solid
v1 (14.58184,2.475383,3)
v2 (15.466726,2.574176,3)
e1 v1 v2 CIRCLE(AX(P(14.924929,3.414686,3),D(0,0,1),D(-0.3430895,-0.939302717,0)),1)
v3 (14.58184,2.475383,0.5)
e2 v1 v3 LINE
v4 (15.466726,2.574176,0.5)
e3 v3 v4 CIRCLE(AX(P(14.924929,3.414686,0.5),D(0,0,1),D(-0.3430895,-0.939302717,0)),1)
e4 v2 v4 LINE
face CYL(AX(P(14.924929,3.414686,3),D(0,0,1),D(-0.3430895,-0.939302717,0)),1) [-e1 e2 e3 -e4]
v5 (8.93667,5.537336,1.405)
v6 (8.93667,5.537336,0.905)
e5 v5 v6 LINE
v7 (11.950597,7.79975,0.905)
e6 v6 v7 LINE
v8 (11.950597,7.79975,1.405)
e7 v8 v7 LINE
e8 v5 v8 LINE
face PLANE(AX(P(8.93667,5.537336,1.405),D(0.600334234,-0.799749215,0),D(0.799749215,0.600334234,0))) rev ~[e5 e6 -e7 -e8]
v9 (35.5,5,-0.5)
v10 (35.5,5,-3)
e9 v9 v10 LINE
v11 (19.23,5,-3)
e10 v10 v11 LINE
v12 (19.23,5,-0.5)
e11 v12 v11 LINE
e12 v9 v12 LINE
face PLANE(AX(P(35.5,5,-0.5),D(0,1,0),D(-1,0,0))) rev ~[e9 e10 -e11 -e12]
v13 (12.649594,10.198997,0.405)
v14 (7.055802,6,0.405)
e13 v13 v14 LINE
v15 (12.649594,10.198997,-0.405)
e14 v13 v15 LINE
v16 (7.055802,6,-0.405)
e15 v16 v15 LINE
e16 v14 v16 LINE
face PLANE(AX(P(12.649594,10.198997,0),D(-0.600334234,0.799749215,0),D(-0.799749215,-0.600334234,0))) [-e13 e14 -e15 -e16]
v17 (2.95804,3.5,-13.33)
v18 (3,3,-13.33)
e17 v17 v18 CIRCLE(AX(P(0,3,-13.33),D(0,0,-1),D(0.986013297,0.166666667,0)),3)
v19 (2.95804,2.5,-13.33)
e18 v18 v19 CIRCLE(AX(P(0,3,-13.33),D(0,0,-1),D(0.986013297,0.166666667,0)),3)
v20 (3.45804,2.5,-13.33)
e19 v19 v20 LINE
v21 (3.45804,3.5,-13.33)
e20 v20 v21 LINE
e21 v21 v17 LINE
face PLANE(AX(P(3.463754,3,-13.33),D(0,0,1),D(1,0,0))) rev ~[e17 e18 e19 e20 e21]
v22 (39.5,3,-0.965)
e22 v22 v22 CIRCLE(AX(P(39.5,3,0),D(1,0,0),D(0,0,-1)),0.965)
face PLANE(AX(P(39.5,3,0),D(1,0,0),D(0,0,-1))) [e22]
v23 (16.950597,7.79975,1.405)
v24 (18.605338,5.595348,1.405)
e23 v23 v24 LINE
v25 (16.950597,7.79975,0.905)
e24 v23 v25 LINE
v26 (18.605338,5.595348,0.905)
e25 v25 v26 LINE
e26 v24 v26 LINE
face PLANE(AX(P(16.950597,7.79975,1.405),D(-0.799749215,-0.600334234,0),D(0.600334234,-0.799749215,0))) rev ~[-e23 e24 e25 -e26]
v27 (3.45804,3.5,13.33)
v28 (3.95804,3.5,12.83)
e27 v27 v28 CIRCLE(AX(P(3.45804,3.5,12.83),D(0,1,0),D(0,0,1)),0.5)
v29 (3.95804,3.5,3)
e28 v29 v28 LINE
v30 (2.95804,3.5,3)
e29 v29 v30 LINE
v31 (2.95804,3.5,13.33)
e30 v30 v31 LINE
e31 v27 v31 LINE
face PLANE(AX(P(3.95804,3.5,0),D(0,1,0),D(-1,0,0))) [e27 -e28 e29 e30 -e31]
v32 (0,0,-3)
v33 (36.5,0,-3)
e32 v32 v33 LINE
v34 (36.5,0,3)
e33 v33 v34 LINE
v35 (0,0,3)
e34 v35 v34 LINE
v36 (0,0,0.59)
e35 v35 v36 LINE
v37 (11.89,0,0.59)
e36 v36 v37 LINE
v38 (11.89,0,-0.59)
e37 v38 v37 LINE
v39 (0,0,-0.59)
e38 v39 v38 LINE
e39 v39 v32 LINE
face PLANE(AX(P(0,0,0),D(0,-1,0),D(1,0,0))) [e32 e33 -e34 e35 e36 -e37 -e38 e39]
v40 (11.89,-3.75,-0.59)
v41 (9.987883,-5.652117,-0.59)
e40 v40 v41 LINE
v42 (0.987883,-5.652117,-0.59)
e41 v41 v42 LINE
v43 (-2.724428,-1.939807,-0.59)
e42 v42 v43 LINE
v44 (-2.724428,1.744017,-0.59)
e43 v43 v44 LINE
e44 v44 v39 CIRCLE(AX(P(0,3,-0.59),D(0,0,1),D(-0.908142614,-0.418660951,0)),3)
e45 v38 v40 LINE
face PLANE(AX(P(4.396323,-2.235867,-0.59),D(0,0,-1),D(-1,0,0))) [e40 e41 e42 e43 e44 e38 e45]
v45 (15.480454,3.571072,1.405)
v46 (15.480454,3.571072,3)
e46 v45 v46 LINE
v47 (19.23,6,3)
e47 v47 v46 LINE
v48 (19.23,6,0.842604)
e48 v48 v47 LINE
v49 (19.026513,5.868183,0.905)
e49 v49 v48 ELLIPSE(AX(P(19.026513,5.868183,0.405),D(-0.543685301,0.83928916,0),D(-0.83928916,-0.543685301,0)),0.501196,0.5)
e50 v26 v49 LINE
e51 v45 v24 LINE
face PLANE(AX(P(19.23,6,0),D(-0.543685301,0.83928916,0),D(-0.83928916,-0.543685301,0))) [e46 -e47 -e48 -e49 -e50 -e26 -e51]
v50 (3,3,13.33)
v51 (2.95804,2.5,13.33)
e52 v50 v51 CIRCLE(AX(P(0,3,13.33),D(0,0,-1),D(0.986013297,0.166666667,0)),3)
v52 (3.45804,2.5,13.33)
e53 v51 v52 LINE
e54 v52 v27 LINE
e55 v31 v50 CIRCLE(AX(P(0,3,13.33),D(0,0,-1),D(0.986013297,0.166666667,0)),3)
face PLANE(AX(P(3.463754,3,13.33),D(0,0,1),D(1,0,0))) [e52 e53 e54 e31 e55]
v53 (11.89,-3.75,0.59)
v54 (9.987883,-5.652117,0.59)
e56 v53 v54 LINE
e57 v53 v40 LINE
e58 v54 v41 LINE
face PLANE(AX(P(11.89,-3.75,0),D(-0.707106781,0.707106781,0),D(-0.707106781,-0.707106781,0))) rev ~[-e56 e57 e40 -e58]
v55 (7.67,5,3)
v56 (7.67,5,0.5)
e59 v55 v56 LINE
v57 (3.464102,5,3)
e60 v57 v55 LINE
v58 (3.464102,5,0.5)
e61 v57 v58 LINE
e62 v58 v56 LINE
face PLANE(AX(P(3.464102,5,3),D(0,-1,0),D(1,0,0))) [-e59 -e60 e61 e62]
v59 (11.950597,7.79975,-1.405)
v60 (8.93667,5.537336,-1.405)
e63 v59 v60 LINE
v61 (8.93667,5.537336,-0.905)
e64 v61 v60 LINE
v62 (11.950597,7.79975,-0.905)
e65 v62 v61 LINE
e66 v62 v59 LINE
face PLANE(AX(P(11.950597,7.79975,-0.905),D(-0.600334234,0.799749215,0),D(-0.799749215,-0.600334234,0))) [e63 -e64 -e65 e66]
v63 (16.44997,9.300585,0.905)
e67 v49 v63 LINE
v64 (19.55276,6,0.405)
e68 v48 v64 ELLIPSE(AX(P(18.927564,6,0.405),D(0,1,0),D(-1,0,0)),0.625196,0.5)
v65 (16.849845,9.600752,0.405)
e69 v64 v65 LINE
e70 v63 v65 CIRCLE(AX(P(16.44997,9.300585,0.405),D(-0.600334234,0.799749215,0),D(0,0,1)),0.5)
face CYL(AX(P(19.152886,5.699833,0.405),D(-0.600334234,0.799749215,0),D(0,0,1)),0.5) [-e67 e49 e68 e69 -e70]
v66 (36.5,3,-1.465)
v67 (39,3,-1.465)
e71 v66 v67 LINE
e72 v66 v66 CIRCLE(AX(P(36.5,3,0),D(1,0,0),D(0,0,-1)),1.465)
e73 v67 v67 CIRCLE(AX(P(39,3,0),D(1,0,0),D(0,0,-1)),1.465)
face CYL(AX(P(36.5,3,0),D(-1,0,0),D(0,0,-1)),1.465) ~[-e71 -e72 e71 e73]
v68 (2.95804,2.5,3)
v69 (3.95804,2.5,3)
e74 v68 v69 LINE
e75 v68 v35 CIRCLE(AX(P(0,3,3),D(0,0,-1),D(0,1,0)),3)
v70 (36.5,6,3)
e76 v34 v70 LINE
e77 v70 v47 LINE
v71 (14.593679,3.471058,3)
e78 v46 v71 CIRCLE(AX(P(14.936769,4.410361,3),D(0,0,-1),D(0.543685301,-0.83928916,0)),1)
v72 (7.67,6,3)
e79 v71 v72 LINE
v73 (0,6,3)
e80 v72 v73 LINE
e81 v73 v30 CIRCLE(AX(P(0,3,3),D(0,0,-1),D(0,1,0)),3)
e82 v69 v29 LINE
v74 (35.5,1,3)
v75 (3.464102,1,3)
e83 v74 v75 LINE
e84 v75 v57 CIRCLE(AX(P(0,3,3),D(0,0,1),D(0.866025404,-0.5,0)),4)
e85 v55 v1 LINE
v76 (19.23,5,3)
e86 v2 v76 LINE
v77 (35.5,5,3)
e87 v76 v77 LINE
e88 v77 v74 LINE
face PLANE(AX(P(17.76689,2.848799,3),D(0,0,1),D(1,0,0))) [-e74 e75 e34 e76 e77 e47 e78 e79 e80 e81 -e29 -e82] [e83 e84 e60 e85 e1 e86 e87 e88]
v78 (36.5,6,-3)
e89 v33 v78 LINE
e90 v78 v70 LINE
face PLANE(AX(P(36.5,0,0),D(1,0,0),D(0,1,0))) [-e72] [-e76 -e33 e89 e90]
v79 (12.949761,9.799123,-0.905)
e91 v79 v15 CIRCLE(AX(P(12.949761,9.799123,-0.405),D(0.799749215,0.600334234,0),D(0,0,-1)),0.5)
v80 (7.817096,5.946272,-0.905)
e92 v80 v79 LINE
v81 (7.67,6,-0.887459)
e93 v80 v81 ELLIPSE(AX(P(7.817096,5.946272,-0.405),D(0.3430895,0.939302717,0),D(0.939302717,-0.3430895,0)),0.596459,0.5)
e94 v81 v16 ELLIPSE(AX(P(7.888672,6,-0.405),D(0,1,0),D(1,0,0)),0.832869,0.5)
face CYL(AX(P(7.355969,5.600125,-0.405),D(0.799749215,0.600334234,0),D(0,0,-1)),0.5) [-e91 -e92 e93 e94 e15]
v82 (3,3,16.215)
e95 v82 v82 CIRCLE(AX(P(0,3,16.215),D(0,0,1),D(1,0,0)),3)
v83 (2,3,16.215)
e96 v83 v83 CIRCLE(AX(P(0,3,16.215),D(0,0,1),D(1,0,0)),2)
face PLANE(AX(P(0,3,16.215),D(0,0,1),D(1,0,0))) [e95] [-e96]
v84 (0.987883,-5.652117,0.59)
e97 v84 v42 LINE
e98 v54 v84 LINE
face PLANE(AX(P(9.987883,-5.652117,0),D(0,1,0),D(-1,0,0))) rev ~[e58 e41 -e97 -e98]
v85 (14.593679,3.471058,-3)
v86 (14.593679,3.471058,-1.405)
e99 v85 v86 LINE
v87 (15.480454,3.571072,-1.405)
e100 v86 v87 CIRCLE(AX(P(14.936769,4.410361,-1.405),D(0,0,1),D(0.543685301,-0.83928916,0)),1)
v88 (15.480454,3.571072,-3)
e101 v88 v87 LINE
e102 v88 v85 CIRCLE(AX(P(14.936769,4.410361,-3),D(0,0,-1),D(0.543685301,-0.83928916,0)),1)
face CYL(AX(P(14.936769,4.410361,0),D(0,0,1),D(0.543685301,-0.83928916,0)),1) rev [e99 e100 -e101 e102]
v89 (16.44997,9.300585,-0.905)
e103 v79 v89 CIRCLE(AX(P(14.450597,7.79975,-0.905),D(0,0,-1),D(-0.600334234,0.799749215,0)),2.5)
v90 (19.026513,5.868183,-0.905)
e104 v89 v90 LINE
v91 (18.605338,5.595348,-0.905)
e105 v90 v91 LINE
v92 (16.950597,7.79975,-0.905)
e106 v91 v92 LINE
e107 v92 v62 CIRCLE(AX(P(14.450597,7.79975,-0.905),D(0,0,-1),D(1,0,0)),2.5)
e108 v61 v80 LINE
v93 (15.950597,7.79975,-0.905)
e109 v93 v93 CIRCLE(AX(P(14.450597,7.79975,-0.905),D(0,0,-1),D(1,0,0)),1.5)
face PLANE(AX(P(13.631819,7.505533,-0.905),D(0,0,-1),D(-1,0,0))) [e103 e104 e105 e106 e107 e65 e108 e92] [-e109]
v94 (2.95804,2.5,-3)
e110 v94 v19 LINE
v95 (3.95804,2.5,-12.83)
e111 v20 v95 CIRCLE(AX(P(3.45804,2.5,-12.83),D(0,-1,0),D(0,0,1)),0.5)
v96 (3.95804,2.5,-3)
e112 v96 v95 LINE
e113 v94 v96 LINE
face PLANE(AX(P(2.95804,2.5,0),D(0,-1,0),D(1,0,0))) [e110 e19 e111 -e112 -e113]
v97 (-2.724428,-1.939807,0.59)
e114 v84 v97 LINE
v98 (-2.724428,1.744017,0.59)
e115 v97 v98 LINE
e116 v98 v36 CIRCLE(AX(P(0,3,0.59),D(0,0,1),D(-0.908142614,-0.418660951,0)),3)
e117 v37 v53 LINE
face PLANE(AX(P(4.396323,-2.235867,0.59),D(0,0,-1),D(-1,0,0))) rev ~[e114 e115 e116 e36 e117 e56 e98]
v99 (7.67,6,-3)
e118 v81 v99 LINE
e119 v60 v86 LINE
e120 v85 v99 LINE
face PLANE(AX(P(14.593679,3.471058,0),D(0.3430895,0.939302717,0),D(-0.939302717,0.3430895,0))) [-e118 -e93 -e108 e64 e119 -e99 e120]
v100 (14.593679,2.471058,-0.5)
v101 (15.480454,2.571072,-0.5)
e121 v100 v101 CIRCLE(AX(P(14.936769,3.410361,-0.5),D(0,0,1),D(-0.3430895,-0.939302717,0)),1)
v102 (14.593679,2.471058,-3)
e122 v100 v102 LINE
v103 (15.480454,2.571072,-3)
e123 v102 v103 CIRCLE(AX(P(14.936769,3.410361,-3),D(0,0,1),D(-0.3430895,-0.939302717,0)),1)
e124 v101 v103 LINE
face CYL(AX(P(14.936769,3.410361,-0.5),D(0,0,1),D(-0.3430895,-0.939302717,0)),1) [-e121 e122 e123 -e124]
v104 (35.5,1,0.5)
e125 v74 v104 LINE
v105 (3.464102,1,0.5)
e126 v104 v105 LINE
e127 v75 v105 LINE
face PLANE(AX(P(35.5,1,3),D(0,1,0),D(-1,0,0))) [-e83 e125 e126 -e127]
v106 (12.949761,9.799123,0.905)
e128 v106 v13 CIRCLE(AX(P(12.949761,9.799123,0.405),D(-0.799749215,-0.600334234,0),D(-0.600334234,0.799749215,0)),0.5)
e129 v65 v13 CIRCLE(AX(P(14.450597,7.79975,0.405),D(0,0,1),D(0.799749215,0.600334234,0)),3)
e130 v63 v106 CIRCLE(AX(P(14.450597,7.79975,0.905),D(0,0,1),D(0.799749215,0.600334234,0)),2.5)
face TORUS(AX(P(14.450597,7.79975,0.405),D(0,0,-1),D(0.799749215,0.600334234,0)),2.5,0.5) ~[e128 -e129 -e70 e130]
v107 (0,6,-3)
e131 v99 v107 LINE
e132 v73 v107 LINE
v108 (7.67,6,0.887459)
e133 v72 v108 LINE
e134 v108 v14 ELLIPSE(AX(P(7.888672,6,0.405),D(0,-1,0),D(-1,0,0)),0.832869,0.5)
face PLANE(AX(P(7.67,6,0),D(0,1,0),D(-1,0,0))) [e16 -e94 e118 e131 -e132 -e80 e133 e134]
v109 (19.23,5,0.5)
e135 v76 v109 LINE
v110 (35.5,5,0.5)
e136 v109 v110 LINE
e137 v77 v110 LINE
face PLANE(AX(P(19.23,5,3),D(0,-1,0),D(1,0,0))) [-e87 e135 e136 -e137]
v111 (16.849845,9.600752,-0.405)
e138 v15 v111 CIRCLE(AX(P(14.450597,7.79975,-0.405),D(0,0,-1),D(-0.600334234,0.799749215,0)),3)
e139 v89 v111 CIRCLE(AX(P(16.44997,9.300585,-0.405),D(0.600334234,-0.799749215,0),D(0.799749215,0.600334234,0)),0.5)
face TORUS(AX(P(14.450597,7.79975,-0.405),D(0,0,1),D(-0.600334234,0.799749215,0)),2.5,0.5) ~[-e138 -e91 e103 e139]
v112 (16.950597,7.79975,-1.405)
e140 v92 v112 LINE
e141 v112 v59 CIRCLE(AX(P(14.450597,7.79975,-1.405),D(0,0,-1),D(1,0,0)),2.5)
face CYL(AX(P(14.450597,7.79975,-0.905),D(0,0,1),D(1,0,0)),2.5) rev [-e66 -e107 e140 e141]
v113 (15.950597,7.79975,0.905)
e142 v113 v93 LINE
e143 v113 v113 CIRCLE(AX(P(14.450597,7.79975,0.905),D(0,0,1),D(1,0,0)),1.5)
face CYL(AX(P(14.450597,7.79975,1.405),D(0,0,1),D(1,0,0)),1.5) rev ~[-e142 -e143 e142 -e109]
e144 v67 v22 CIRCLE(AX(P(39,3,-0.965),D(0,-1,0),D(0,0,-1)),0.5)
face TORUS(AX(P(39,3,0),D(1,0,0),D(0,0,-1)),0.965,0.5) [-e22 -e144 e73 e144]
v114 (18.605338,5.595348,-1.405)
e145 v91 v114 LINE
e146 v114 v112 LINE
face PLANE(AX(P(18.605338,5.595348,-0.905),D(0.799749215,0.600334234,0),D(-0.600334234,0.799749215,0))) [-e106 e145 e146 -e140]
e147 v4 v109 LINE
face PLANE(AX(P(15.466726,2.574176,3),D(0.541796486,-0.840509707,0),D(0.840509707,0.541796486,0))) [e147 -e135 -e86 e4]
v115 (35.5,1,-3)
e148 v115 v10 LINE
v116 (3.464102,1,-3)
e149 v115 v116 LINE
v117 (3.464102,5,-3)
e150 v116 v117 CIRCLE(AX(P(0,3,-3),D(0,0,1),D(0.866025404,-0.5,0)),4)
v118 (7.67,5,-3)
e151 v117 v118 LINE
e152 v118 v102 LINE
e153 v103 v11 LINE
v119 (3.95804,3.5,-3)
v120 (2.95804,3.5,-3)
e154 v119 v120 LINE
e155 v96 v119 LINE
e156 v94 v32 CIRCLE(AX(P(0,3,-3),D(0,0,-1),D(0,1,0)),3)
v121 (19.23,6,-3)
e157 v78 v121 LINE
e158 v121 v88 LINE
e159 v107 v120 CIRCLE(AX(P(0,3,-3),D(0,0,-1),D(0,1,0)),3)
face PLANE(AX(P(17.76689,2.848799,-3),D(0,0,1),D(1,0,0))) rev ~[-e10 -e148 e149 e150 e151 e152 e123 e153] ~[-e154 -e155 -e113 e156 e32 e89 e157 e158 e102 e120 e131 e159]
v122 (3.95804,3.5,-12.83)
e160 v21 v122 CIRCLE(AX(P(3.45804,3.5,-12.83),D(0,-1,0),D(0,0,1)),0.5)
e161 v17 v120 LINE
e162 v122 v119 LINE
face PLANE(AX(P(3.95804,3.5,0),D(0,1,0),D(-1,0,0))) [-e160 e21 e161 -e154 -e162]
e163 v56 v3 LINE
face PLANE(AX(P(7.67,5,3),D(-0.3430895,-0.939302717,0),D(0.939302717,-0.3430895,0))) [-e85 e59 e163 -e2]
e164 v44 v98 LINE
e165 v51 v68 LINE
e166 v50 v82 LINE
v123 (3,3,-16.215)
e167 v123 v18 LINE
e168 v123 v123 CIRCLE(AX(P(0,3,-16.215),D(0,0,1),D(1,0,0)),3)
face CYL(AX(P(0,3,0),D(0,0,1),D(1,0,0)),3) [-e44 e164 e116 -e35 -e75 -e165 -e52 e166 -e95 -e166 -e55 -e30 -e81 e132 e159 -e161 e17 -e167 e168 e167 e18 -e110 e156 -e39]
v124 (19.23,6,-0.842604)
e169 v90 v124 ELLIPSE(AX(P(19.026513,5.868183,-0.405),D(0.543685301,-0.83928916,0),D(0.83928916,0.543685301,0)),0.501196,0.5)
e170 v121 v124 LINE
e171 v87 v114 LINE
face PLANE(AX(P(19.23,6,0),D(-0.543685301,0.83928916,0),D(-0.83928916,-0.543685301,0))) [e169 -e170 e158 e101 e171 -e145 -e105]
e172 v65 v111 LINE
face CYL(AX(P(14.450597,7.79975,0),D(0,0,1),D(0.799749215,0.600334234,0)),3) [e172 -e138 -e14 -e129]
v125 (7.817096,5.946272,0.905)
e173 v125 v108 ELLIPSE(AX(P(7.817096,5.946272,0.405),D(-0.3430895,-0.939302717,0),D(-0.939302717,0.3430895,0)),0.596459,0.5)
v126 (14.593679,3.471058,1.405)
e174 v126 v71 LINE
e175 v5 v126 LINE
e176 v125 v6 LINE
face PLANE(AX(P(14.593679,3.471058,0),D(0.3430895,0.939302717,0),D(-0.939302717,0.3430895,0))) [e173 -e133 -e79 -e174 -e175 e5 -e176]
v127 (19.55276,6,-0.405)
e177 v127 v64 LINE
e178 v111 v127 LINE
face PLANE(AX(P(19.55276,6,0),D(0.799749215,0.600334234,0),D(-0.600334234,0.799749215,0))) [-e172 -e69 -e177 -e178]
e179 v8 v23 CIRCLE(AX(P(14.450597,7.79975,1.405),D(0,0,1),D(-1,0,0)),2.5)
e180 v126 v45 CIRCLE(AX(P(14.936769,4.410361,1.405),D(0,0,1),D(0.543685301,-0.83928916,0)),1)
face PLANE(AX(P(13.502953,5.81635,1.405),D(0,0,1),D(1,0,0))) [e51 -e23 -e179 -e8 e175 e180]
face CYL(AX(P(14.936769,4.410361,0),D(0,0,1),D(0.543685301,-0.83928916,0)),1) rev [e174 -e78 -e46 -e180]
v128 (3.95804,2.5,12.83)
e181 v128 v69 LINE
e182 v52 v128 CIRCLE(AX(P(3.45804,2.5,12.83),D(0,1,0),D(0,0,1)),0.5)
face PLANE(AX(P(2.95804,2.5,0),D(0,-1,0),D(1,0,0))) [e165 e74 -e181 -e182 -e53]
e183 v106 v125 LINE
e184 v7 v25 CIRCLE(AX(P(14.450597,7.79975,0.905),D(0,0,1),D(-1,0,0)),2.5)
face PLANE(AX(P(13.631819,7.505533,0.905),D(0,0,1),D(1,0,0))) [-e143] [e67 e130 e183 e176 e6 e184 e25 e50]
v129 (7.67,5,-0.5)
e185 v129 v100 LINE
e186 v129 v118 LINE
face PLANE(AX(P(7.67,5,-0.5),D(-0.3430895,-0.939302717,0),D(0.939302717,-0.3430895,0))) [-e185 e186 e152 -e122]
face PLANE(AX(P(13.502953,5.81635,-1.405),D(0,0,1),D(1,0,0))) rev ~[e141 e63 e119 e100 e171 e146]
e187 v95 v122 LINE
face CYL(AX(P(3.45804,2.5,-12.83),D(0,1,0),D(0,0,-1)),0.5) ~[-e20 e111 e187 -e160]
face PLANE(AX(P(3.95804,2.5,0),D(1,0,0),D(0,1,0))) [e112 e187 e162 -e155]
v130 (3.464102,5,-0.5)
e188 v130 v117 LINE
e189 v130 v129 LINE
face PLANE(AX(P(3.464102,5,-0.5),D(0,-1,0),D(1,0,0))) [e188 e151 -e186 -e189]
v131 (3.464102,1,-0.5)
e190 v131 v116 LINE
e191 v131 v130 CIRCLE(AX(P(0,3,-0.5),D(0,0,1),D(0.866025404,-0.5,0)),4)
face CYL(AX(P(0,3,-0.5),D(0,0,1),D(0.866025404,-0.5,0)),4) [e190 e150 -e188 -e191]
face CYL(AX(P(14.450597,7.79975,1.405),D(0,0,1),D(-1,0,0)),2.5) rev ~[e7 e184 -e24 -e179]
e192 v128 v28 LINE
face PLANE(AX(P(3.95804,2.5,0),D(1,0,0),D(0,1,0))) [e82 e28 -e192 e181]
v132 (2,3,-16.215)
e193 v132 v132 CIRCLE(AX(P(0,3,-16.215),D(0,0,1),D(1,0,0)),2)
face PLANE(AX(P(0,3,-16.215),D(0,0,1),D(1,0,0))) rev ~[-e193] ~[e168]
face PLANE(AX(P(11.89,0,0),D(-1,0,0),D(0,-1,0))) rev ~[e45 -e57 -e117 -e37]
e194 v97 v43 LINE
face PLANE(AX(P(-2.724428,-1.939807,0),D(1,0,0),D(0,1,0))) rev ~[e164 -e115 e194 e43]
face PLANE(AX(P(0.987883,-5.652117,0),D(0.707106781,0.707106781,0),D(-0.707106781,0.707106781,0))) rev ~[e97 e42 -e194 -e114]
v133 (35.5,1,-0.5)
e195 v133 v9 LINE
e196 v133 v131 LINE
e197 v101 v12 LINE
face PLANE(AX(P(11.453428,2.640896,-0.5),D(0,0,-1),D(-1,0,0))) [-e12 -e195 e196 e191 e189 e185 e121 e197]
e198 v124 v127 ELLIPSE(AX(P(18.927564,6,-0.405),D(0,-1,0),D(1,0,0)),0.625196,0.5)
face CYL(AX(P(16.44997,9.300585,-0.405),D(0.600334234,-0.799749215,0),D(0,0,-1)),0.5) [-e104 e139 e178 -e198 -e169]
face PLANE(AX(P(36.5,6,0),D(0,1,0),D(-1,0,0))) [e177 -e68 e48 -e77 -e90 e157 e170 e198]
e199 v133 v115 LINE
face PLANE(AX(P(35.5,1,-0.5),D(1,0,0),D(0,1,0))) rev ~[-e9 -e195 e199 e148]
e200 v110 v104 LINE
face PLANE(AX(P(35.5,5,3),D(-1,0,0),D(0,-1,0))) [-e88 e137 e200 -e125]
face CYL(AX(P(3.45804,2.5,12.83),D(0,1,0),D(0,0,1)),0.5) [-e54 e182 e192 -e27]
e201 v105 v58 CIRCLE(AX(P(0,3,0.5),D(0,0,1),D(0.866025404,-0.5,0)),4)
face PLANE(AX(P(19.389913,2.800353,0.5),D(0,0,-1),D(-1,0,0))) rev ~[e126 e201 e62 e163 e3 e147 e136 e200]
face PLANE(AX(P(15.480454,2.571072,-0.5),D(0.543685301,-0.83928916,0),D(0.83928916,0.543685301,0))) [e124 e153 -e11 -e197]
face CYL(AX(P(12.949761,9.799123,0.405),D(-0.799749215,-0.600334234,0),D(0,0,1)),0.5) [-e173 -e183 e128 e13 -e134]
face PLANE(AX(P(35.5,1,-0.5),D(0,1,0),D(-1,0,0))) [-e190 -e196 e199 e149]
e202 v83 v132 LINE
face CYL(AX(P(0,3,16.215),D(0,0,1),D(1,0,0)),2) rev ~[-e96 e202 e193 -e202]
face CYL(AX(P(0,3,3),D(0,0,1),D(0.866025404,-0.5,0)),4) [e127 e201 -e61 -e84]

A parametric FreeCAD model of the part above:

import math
import FreeCAD as App
import Part
import Sketcher
Q = App.Units.Quantity


def edges_at(feature, points):
    """Names of the edges that pass closest to the given points."""
    edges = feature.Shape.Edges
    near = lambda p: min(range(len(edges)), key=lambda i: edges[i].distToShape(Part.Vertex(*p))[0])
    return sorted({f"Edge{near(p) + 1}" for p in points})

doc = App.newDocument("Part")
params = doc.addObject("Spreadsheet::Sheet", "Params")
for row, (alias, value) in enumerate([
    ("sketch1_radius", "1 mm"),
    ("sketch1_radius2", "3 mm"),
    ("sketch1_width", "36.5 mm"),
    ("sketch1_width2", "17.27 mm"),
    ("sketch1_width3", "7.67 mm"),
    ("pad1_length", "6 mm"),
    ("sketch2_diameter", "2.93 mm"),
    ("pad2_length", "3 mm"),
    ("fillet_radius", "0.5 mm"),
    ("sketch3_diameter", "6 mm"),
    ("pad3_length", "32.43 mm"),
    ("sketch4_radius", "3 mm"),
    ("pad4_length", "2.81 mm"),
    ("sketch5_diameter", "4 mm"),
    ("pocket1_length", "35 mm"),
    ("sketch6_diameter", "3 mm"),
    ("pocket2_length", "35 mm"),
    ("sketch7_radius", "1 mm"),
    ("sketch7_radius2", "4 mm"),
    ("sketch7_height", "4 mm"),
    ("sketch7_width", "16.27 mm"),
    ("pocket3_length", "2.5 mm"),
    ("sketch8_radius", "4 mm"),
    ("sketch8_radius2", "1 mm"),
    ("sketch8_height", "4 mm"),
    ("sketch8_width", "16.27 mm"),
    ("pocket4_length", "2.5 mm"),
    ("sketch9_radius", "3 mm"),
    ("sketch9_width", "9 mm"),
    ("sketch9_width2", "11.89 mm"),
    ("sketch9_height", "3.75 mm"),
    ("sketch9_length", "5.25 mm"),
    ("pad5_length", "1.18 mm"),
    ("sketch10_radius", "3 mm"),
    ("sketch10_width", "1 mm"),
    ("pad6_length", "26.66 mm"),
    ("fillet2_radius", "0.5 mm"),
    ("fillet3_radius", "0.5 mm"),
    ("sketch11_diameter", "3 mm"),
    ("sketch11_radius", "3 mm"),
    ("sketch11_radius2", "2.5 mm"),
    ("pocket5_length", "0.5 mm"),
    ("fillet4_radius", "0.5 mm"),
    ("sketch12_diameter", "3 mm"),
    ("sketch12_radius", "3 mm"),
    ("sketch12_radius2", "2.5 mm"),
    ("pocket6_length", "0.5 mm"),
    ("fillet5_radius", "0.5 mm"),
], start=1):
    params.set(f"A{row}", alias)
    params.set(f"B{row}", "=" + value)
    params.setAlias(f"B{row}", alias)

body = doc.addObject("PartDesign::Body", "Body")

# Sketch on XY plane
sketch1 = body.newObject("Sketcher::SketchObject", "Sketch")
sketch1.AttachmentSupport = (doc.getObject("XY_Plane"), [""])
sketch1.MapMode = "FlatFace"
sketch1.addGeometry([
    Part.LineSegment(App.Vector(0, 0, 0), App.Vector(36.5, 0, 0)),  # 0
    Part.LineSegment(App.Vector(36.5, 0, 0), App.Vector(36.5, 6, 0)),  # 1
    Part.LineSegment(App.Vector(36.5, 6, 0), App.Vector(19.2, 6, 0)),  # 2
    Part.LineSegment(App.Vector(19.2, 6, 0), App.Vector(15.5, 3.6, 0)),  # 3
    Part.ArcOfCircle(Part.Circle(App.Vector(14.9, 4.4, 0), App.Vector(0, 0, 1), 1), math.radians(-110), math.radians(-57)),  # 4
    Part.LineSegment(App.Vector(14.6, 3.5, 0), App.Vector(7.7, 6, 0)),  # 5
    Part.LineSegment(App.Vector(7.7, 6, 0), App.Vector(0, 6, 0)),  # 6
    Part.ArcOfCircle(Part.Circle(App.Vector(0, 3, 0), App.Vector(0, 0, 1), 3), math.radians(-90), math.radians(90)),  # 7
], False)
sketch1.addConstraint([
    Sketcher.Constraint("Coincident", 0, 2, 1, 1),
    Sketcher.Constraint("Coincident", 1, 2, 2, 1),
    Sketcher.Constraint("Coincident", 2, 2, 3, 1),
    Sketcher.Constraint("Tangent", 3, 2, 4, 2),
    Sketcher.Constraint("Tangent", 4, 1, 5, 1),
    Sketcher.Constraint("Coincident", 5, 2, 6, 1),
    Sketcher.Constraint("Tangent", 6, 2, 7, 2),
    Sketcher.Constraint("Tangent", 7, 1, 0, 1),
    Sketcher.Constraint("Horizontal", 0),
    Sketcher.Constraint("Vertical", 1),
    Sketcher.Constraint("Horizontal", 2),
    Sketcher.Constraint("Horizontal", 6),
    Sketcher.Constraint("Coincident", 7, 1, -1, 1),
    Sketcher.Constraint("Horizontal", 2, 2, 5, 2),
    Sketcher.Constraint("Radius", 4, Q("1 mm")),
    Sketcher.Constraint("Radius", 7, Q("3 mm")),
    Sketcher.Constraint("DistanceX", 0, 1, 0, 2, Q("36.5 mm")),
    Sketcher.Constraint("DistanceX", 2, 2, 2, 1, Q("17.27 mm")),
    Sketcher.Constraint("DistanceX", 6, 2, 6, 1, Q("7.67 mm")),
    Sketcher.Constraint("DistanceX", -1, 1, 4, 3, Q("14.936769 mm")),
    Sketcher.Constraint("DistanceY", -1, 1, 4, 3, Q("4.410361 mm")),
])
sketch1.setExpression("Constraints[14]", "Params.sketch1_radius")
sketch1.setExpression("Constraints[15]", "Params.sketch1_radius2")
sketch1.setExpression("Constraints[16]", "Params.sketch1_width")
sketch1.setExpression("Constraints[17]", "Params.sketch1_width2")
sketch1.setExpression("Constraints[18]", "Params.sketch1_width3")
pad1 = body.newObject("PartDesign::Pad", "Pad")
pad1.Profile = sketch1
pad1.setExpression("Length", "Params.pad1_length")
pad1.Midplane = True

# Sketch on YZ plane
sketch2 = body.newObject("Sketcher::SketchObject", "Sketch001")
sketch2.AttachmentSupport = (doc.getObject("YZ_Plane"), [""])
sketch2.MapMode = "FlatFace"
sketch2.AttachmentOffset = App.Placement(App.Vector(0, 0, 36.5), App.Rotation())
sketch2.addGeometry(Part.Circle(App.Vector(3, 0, 0), App.Vector(0, 0, 1), 1.5), False)
sketch2.addConstraint([
    Sketcher.Constraint("PointOnObject", 0, 3, -1),
    Sketcher.Constraint("Diameter", 0, Q("2.93 mm")),
    Sketcher.Constraint("DistanceX", -1, 1, 0, 3, Q("3 mm")),
])
sketch2.setExpression("Constraints[1]", "Params.sketch2_diameter")
pad2 = body.newObject("PartDesign::Pad", "Pad001")
pad2.Profile = sketch2
pad2.setExpression("Length", "Params.pad2_length")
doc.recompute()

fillet = body.newObject("PartDesign::Fillet", "Fillet")
fillet.Base = (pad2, edges_at(pad2, [(39.5, 3, 1.465)]))
fillet.setExpression("Radius", "Params.fillet_radius")

# Sketch on XY plane
sketch3 = body.newObject("Sketcher::SketchObject", "Sketch002")
sketch3.AttachmentSupport = (doc.getObject("XY_Plane"), [""])
sketch3.MapMode = "FlatFace"
sketch3.addGeometry(Part.Circle(App.Vector(0, 3, 0), App.Vector(0, 0, 1), 3), False)
sketch3.addConstraint([
    Sketcher.Constraint("PointOnObject", 0, 3, -2),
    Sketcher.Constraint("Diameter", 0, Q("6 mm")),
    Sketcher.Constraint("DistanceY", -1, 1, 0, 3, Q("3 mm")),
])
sketch3.setExpression("Constraints[1]", "Params.sketch3_diameter")
pad3 = body.newObject("PartDesign::Pad", "Pad002")
pad3.Profile = sketch3
pad3.setExpression("Length", "Params.pad3_length")
pad3.Midplane = True

# Sketch on XY plane
sketch4 = body.newObject("Sketcher::SketchObject", "Sketch003")
sketch4.AttachmentSupport = (doc.getObject("XY_Plane"), [""])
sketch4.MapMode = "FlatFace"
sketch4.addGeometry([
    Part.LineSegment(App.Vector(7.1, 6, 0), App.Vector(7.7, 6, 0)),  # 0
    Part.LineSegment(App.Vector(7.7, 6, 0), App.Vector(7.7, 2.7, 0)),  # 1
    Part.LineSegment(App.Vector(7.7, 2.7, 0), App.Vector(19.6, 2.7, 0)),  # 2
    Part.LineSegment(App.Vector(19.6, 2.7, 0), App.Vector(19.6, 6, 0)),  # 3
    Part.LineSegment(App.Vector(19.6, 6, 0), App.Vector(16.8, 9.6, 0)),  # 4
    Part.ArcOfCircle(Part.Circle(App.Vector(14.5, 7.8, 0), App.Vector(0, 0, 1), 3), math.radians(37), math.radians(127)),  # 5
    Part.LineSegment(App.Vector(12.6, 10.2, 0), App.Vector(7.1, 6, 0)),  # 6
], False)
sketch4.addConstraint([
    Sketcher.Constraint("Coincident", 0, 2, 1, 1),
    Sketcher.Constraint("Coincident", 1, 2, 2, 1),
    Sketcher.Constraint("Coincident", 2, 2, 3, 1),
    Sketcher.Constraint("Coincident", 3, 2, 4, 1),
    Sketcher.Constraint("Tangent", 4, 2, 5, 1),
    Sketcher.Constraint("Tangent", 5, 2, 6, 1),
    Sketcher.Constraint("Coincident", 6, 2, 0, 1),
    Sketcher.Constraint("Horizontal", 0),
    Sketcher.Constraint("Vertical", 1),
    Sketcher.Constraint("Horizontal", 2),
    Sketcher.Constraint("Vertical", 3),
    Sketcher.Constraint("Perpendicular", 4, 6),
    Sketcher.Constraint("Horizontal", 0, 2, 3, 2),
    Sketcher.Constraint("Radius", 5, Q("3 mm")),
    Sketcher.Constraint("DistanceY", -1, 1, 0, 2, Q("6 mm")),
    Sketcher.Constraint("DistanceX", -1, 1, 0, 2, Q("7.67 mm")),
    Sketcher.Constraint("DistanceX", 2, 1, 2, 2, Q("11.88276 mm")),
    Sketcher.Constraint("DistanceY", 1, 2, 5, 2, Q("7.4834 mm")),
    Sketcher.Constraint("Distance", 4, Q("4.502352 mm")),
    Sketcher.Constraint("DistanceX", 0, 1, 0, 2, Q("0.614198 mm")),
])
sketch4.setExpression("Constraints[13]", "Params.sketch4_radius")
pad4 = body.newObject("PartDesign::Pad", "Pad003")
pad4.Profile = sketch4
pad4.setExpression("Length", "Params.pad4_length")
pad4.Midplane = True

# Sketch on XY plane
sketch5 = body.newObject("Sketcher::SketchObject", "Sketch004")
sketch5.AttachmentSupport = (doc.getObject("XY_Plane"), [""])
sketch5.MapMode = "FlatFace"
sketch5.AttachmentOffset = App.Placement(App.Vector(0, 0, 16.215), App.Rotation())
sketch5.addGeometry(Part.Circle(App.Vector(0, 3, 0), App.Vector(0, 0, 1), 2), False)
sketch5.addConstraint([
    Sketcher.Constraint("PointOnObject", 0, 3, -2),
    Sketcher.Constraint("Diameter", 0, Q("4 mm")),
    Sketcher.Constraint("DistanceY", -1, 1, 0, 3, Q("3 mm")),
])
sketch5.setExpression("Constraints[1]", "Params.sketch5_diameter")
pocket1 = body.newObject("PartDesign::Pocket", "Pocket")
pocket1.Profile = sketch5
pocket1.setExpression("Length", "Params.pocket1_length")

# Sketch on XY plane
sketch6 = body.newObject("Sketcher::SketchObject", "Sketch005")
sketch6.AttachmentSupport = (doc.getObject("XY_Plane"), [""])
sketch6.MapMode = "FlatFace"
sketch6.AttachmentOffset = App.Placement(App.Vector(0, 0, 1.405), App.Rotation())
sketch6.addGeometry(Part.Circle(App.Vector(14.5, 7.8, 0), App.Vector(0, 0, 1), 1.5), False)
sketch6.addConstraint([
    Sketcher.Constraint("Diameter", 0, Q("3 mm")),
    Sketcher.Constraint("DistanceY", -1, 1, 0, 3, Q("7.79975 mm")),
    Sketcher.Constraint("DistanceX", -1, 1, 0, 3, Q("14.450597 mm")),
])
sketch6.setExpression("Constraints[0]", "Params.sketch6_diameter")
pocket2 = body.newObject("PartDesign::Pocket", "Pocket001")
pocket2.Profile = sketch6
pocket2.setExpression("Length", "Params.pocket2_length")

# Sketch on XY plane
sketch7 = body.newObject("Sketcher::SketchObject", "Sketch006")
sketch7.AttachmentSupport = (doc.getObject("XY_Plane"), [""])
sketch7.MapMode = "FlatFace"
sketch7.AttachmentOffset = App.Placement(App.Vector(0, 0, 3), App.Rotation())
sketch7.addGeometry([
    Part.LineSegment(App.Vector(35.5, 1, 0), App.Vector(35.5, 5, 0)),  # 0
    Part.LineSegment(App.Vector(35.5, 5, 0), App.Vector(19.2, 5, 0)),  # 1
    Part.LineSegment(App.Vector(19.2, 5, 0), App.Vector(15.5, 2.6, 0)),  # 2
    Part.ArcOfCircle(Part.Circle(App.Vector(14.9, 3.4, 0), App.Vector(0, 0, 1), 1), math.radians(-110), math.radians(-57)),  # 3
    Part.LineSegment(App.Vector(14.6, 2.5, 0), App.Vector(7.7, 5, 0)),  # 4
    Part.LineSegment(App.Vector(7.7, 5, 0), App.Vector(3.5, 5, 0)),  # 5
    Part.ArcOfCircle(Part.Circle(App.Vector(0, 3, 0), App.Vector(0, 0, 1), 4), math.radians(-30), math.radians(30)),  # 6
    Part.LineSegment(App.Vector(3.5, 1, 0), App.Vector(35.5, 1, 0)),  # 7
], False)
sketch7.addConstraint([
    Sketcher.Constraint("Coincident", 0, 2, 1, 1),
    Sketcher.Constraint("Coincident", 1, 2, 2, 1),
    Sketcher.Constraint("Tangent", 2, 2, 3, 2),
    Sketcher.Constraint("Tangent", 3, 1, 4, 1),
    Sketcher.Constraint("Coincident", 4, 2, 5, 1),
    Sketcher.Constraint("Coincident", 5, 2, 6, 2),
    Sketcher.Constraint("Coincident", 6, 1, 7, 1),
    Sketcher.Constraint("Coincident", 7, 2, 0, 1),
    Sketcher.Constraint("Vertical", 0),
    Sketcher.Constraint("Horizontal", 1),
    Sketcher.Constraint("Horizontal", 5),
    Sketcher.Constraint("Horizontal", 7),
    Sketcher.Constraint("PointOnObject", 6, 3, -2),
    Sketcher.Constraint("Horizontal", 1, 2, 4, 2),
    Sketcher.Constraint("Vertical", 5, 2, 6, 1),
    Sketcher.Constraint("Radius", 3, Q("1 mm")),
    Sketcher.Constraint("Radius", 6, Q("4 mm")),
    Sketcher.Constraint("DistanceY", 0, 1, 0, 2, Q("4 mm")),
    Sketcher.Constraint("DistanceY", -1, 1, 6, 3, Q("3 mm")),
    Sketcher.Constraint("DistanceX", 1, 2, 1, 1, Q("16.27 mm")),
    Sketcher.Constraint("DistanceX", -1, 1, 0, 2, Q("35.5 mm")),
    Sketcher.Constraint("DistanceX", -1, 1, 4, 2, Q("7.67 mm")),
    Sketcher.Constraint("Distance", 2, Q("4.477371 mm")),
    Sketcher.Constraint("Distance", 4, Q("7.35848 mm")),
])
sketch7.setExpression("Constraints[15]", "Params.sketch7_radius")
sketch7.setExpression("Constraints[16]", "Params.sketch7_radius2")
sketch7.setExpression("Constraints[17]", "Params.sketch7_height")
sketch7.setExpression("Constraints[19]", "Params.sketch7_width")
pocket3 = body.newObject("PartDesign::Pocket", "Pocket002")
pocket3.Profile = sketch7
pocket3.setExpression("Length", "Params.pocket3_length")

# Sketch on XY plane
sketch8 = body.newObject("Sketcher::SketchObject", "Sketch007")
sketch8.AttachmentSupport = (doc.getObject("XY_Plane"), [""])
sketch8.MapMode = "FlatFace"
sketch8.AttachmentOffset = App.Placement(App.Vector(0, 0, -0.5), App.Rotation())
sketch8.addGeometry([
    Part.LineSegment(App.Vector(15.5, 2.6, 0), App.Vector(19.2, 5, 0)),  # 0
    Part.LineSegment(App.Vector(19.2, 5, 0), App.Vector(35.5, 5, 0)),  # 1
    Part.LineSegment(App.Vector(35.5, 5, 0), App.Vector(35.5, 1, 0)),  # 2
    Part.LineSegment(App.Vector(35.5, 1, 0), App.Vector(3.5, 1, 0)),  # 3
    Part.ArcOfCircle(Part.Circle(App.Vector(0, 3, 0), App.Vector(0, 0, 1), 4), math.radians(-30), math.radians(30)),  # 4
    Part.LineSegment(App.Vector(3.5, 5, 0), App.Vector(7.7, 5, 0)),  # 5
    Part.LineSegment(App.Vector(7.7, 5, 0), App.Vector(14.6, 2.5, 0)),  # 6
    Part.ArcOfCircle(Part.Circle(App.Vector(14.9, 3.4, 0), App.Vector(0, 0, 1), 1), math.radians(-110), math.radians(-57)),  # 7
], False)
sketch8.addConstraint([
    Sketcher.Constraint("Coincident", 0, 2, 1, 1),
    Sketcher.Constraint("Coincident", 1, 2, 2, 1),
    Sketcher.Constraint("Coincident", 2, 2, 3, 1),
    Sketcher.Constraint("Coincident", 3, 2, 4, 1),
    Sketcher.Constraint("Coincident", 4, 2, 5, 1),
    Sketcher.Constraint("Coincident", 5, 2, 6, 1),
    Sketcher.Constraint("Tangent", 6, 2, 7, 1),
    Sketcher.Constraint("Tangent", 7, 2, 0, 1),
    Sketcher.Constraint("Horizontal", 1),
    Sketcher.Constraint("Vertical", 2),
    Sketcher.Constraint("Horizontal", 3),
    Sketcher.Constraint("Horizontal", 5),
    Sketcher.Constraint("PointOnObject", 4, 3, -2),
    Sketcher.Constraint("Horizontal", 1, 2, 4, 2),
    Sketcher.Constraint("Vertical", 3, 2, 4, 2),
    Sketcher.Constraint("Radius", 4, Q("4 mm")),
    Sketcher.Constraint("Radius", 7, Q("1 mm")),
    Sketcher.Constraint("DistanceY", 2, 2, 2, 1, Q("4 mm")),
    Sketcher.Constraint("DistanceY", -1, 1, 4, 3, Q("3 mm")),
    Sketcher.Constraint("DistanceX", 1, 1, 1, 2, Q("16.27 mm")),
    Sketcher.Constraint("DistanceX", -1, 1, 1, 2, Q("35.5 mm")),
    Sketcher.Constraint("DistanceX", -1, 1, 5, 2, Q("7.67 mm")),
    Sketcher.Constraint("DistanceX", -1, 1, 7, 3, Q("14.936769 mm")),
    Sketcher.Constraint("DistanceY", -1, 1, 7, 3, Q("3.410361 mm")),
])
sketch8.setExpression("Constraints[15]", "Params.sketch8_radius")
sketch8.setExpression("Constraints[16]", "Params.sketch8_radius2")
sketch8.setExpression("Constraints[17]", "Params.sketch8_height")
sketch8.setExpression("Constraints[19]", "Params.sketch8_width")
pocket4 = body.newObject("PartDesign::Pocket", "Pocket003")
pocket4.Profile = sketch8
pocket4.setExpression("Length", "Params.pocket4_length")

# Sketch on XY plane
sketch9 = body.newObject("Sketcher::SketchObject", "Sketch008")
sketch9.AttachmentSupport = (doc.getObject("XY_Plane"), [""])
sketch9.MapMode = "FlatFace"
sketch9.addGeometry([
    Part.LineSegment(App.Vector(11.9, -3.8, 0), App.Vector(11.9, 0, 0)),  # 0
    Part.LineSegment(App.Vector(11.9, 0, 0), App.Vector(0, 0, 0)),  # 1
    Part.ArcOfCircle(Part.Circle(App.Vector(0, 3, 0), App.Vector(0, 0, 1), 3), math.radians(-155), math.radians(-90)),  # 2
    Part.LineSegment(App.Vector(-2.7, 1.7, 0), App.Vector(-2.7, -1.9, 0)),  # 3
    Part.LineSegment(App.Vector(-2.7, -1.9, 0), App.Vector(1, -5.7, 0)),  # 4
    Part.LineSegment(App.Vector(1, -5.7, 0), App.Vector(10, -5.7, 0)),  # 5
    Part.LineSegment(App.Vector(10, -5.7, 0), App.Vector(11.9, -3.8, 0)),  # 6
], False)
sketch9.addConstraint([
    Sketcher.Constraint("Coincident", 0, 2, 1, 1),
    Sketcher.Constraint("Tangent", 1, 2, 2, 2),
    Sketcher.Constraint("Coincident", 2, 1, 3, 1),
    Sketcher.Constraint("Coincident", 3, 2, 4, 1),
    Sketcher.Constraint("Coincident", 4, 2, 5, 1),
    Sketcher.Constraint("Coincident", 5, 2, 6, 1),
    Sketcher.Constraint("Coincident", 6, 2, 0, 1),
    Sketcher.Constraint("Vertical", 0),
    Sketcher.Constraint("Horizontal", 1),
    Sketcher.Constraint("Vertical", 3),
    Sketcher.Constraint("Horizontal", 5),
    Sketcher.Constraint("Coincident", 1, 2, -1, 1),
    Sketcher.Constraint("Perpendicular", 4, 6),
    Sketcher.Constraint("Radius", 2, Q("3 mm")),
    Sketcher.Constraint("DistanceX", 5, 1, 5, 2, Q("9 mm")),
    Sketcher.Constraint("Angle", 4, Q("-45 deg")),
    Sketcher.Constraint("DistanceX", 1, 2, 1, 1, Q("11.89 mm")),
    Sketcher.Constraint("DistanceY", 0, 1, 0, 2, Q("3.75 mm")),
    Sketcher.Constraint("Distance", 4, Q("5.25 mm")),
    Sketcher.Constraint("Distance", 6, Q("2.69 mm")),
])
sketch9.setExpression("Constraints[13]", "Params.sketch9_radius")
sketch9.setExpression("Constraints[14]", "Params.sketch9_width")
sketch9.setExpression("Constraints[16]", "Params.sketch9_width2")
sketch9.setExpression("Constraints[17]", "Params.sketch9_height")
sketch9.setExpression("Constraints[18]", "Params.sketch9_length")
pad5 = body.newObject("PartDesign::Pad", "Pad004")
pad5.Profile = sketch9
pad5.setExpression("Length", "Params.pad5_length")
pad5.Midplane = True

# Sketch on XY plane
sketch10 = body.newObject("Sketcher::SketchObject", "Sketch009")
sketch10.AttachmentSupport = (doc.getObject("XY_Plane"), [""])
sketch10.MapMode = "FlatFace"
sketch10.addGeometry([
    Part.LineSegment(App.Vector(4, 2.5, 0), App.Vector(4, 3.5, 0)),
    Part.LineSegment(App.Vector(4, 3.5, 0), App.Vector(3, 3.5, 0)),
    Part.ArcOfCircle(Part.Circle(App.Vector(0, 3, 0), App.Vector(0, 0, 1), 3), math.radians(-9.59), math.radians(9.59)),
    Part.LineSegment(App.Vector(3, 2.5, 0), App.Vector(4, 2.5, 0)),
], False)
sketch10.addConstraint([
    Sketcher.Constraint("Coincident", 0, 2, 1, 1),
    Sketcher.Constraint("Coincident", 1, 2, 2, 2),
    Sketcher.Constraint("Coincident", 2, 1, 3, 1),
    Sketcher.Constraint("Coincident", 3, 2, 0, 1),
    Sketcher.Constraint("Vertical", 0),
    Sketcher.Constraint("Horizontal", 1),
    Sketcher.Constraint("Horizontal", 3),
    Sketcher.Constraint("PointOnObject", 2, 3, -2),
    Sketcher.Constraint("Vertical", 1, 2, 2, 1),
    Sketcher.Constraint("Equal", 3, 0),
    Sketcher.Constraint("Radius", 2, Q("3 mm")),
    Sketcher.Constraint("DistanceX", 1, 2, 1, 1, Q("1 mm")),
    Sketcher.Constraint("DistanceY", -1, 1, 2, 3, Q("3 mm")),
])
sketch10.setExpression("Constraints[10]", "Params.sketch10_radius")
sketch10.setExpression("Constraints[11]", "Params.sketch10_width")
pad6 = body.newObject("PartDesign::Pad", "Pad005")
pad6.Profile = sketch10
pad6.setExpression("Length", "Params.pad6_length")
pad6.Midplane = True
doc.recompute()

fillet2 = body.newObject("PartDesign::Fillet", "Fillet001")
fillet2.Base = (pad6, edges_at(pad6, [(3.958, 3, 13.33)]))
fillet2.setExpression("Radius", "Params.fillet2_radius")
doc.recompute()

fillet3 = body.newObject("PartDesign::Fillet", "Fillet002")
fillet3.Base = (fillet2, edges_at(fillet2, [(3.958, 3, -13.33)]))
fillet3.setExpression("Radius", "Params.fillet3_radius")

# Sketch on XY plane
sketch11 = body.newObject("Sketcher::SketchObject", "Sketch010")
sketch11.AttachmentSupport = (doc.getObject("XY_Plane"), [""])
sketch11.MapMode = "FlatFace"
sketch11.AttachmentOffset = App.Placement(App.Vector(0, 0, 1.405), App.Rotation())
sketch11.addGeometry([
    Part.LineSegment(App.Vector(8.94, 5.54, 0), App.Vector(11.95, 7.8, 0)),  # 0
    Part.ArcOfCircle(Part.Circle(App.Vector(14.45, 7.8, 0), App.Vector(0, 0, 1), 2.5), math.radians(180), math.radians(360)),  # 1
    Part.LineSegment(App.Vector(16.95, 7.8, 0), App.Vector(18.61, 5.6, 0)),  # 2
    Part.LineSegment(App.Vector(18.61, 5.6, 0), App.Vector(19.23, 6, 0)),  # 3
    Part.LineSegment(App.Vector(19.23, 6, 0), App.Vector(19.55, 6, 0)),  # 4
    Part.LineSegment(App.Vector(19.55, 6, 0), App.Vector(16.85, 9.6, 0)),  # 5
    Part.ArcOfCircle(Part.Circle(App.Vector(14.45, 7.8, 0), App.Vector(0, 0, 1), 3), math.radians(37), math.radians(127)),  # 6
    Part.LineSegment(App.Vector(12.65, 10.2, 0), App.Vector(7.06, 6, 0)),  # 7
    Part.LineSegment(App.Vector(7.06, 6, 0), App.Vector(7.67, 6, 0)),  # 8
    Part.LineSegment(App.Vector(7.67, 6, 0), App.Vector(8.94, 5.54, 0)),  # 9
    Part.Circle(App.Vector(14.45, 7.8, 0), App.Vector(0, 0, 1), 1.5),  # 10
], False)
sketch11.addConstraint([
    Sketcher.Constraint("Coincident", 0, 2, 1, 1),
    Sketcher.Constraint("Coincident", 1, 2, 2, 1),
    Sketcher.Constraint("Coincident", 2, 2, 3, 1),
    Sketcher.Constraint("Coincident", 3, 2, 4, 1),
    Sketcher.Constraint("Coincident", 4, 2, 5, 1),
    Sketcher.Constraint("Tangent", 5, 2, 6, 1),
    Sketcher.Constraint("Tangent", 6, 2, 7, 1),
    Sketcher.Constraint("Coincident", 7, 2, 8, 1),
    Sketcher.Constraint("Coincident", 8, 2, 9, 1),
    Sketcher.Constraint("Coincident", 9, 2, 0, 1),
    Sketcher.Constraint("Horizontal", 4),
    Sketcher.Constraint("Horizontal", 8),
    Sketcher.Constraint("Coincident", 6, 3, 1, 3),
    Sketcher.Constraint("Coincident", 10, 3, 1, 3),
    Sketcher.Constraint("Perpendicular", 0, 2),
    Sketcher.Constraint("Parallel", 2, 5),
    Sketcher.Constraint("Perpendicular", 5, 7),
    Sketcher.Constraint("Horizontal", 10, 3, 0, 2),
    Sketcher.Constraint("Horizontal", 0, 2, 1, 2),
    Sketcher.Constraint("Horizontal", 4, 2, 7, 2),
    Sketcher.Constraint("Diameter", 10, Q("3 mm")),
    Sketcher.Constraint("Radius", 6, Q("3 mm")),
    Sketcher.Constraint("Radius", 1, Q("2.5 mm")),
    Sketcher.Constraint("DistanceY", -1, 1, 3, 2, Q("6 mm")),
    Sketcher.Constraint("DistanceX", -1, 1, 3, 2, Q("19.23 mm")),
    Sketcher.Constraint("DistanceX", -1, 1, 8, 2, Q("7.67 mm")),
    Sketcher.Constraint("DistanceX", 4, 1, 4, 2, Q("0.32276 mm")),
    Sketcher.Constraint("DistanceY", 2, 2, 1, 2, Q("2.204401 mm")),
    Sketcher.Constraint("Distance", 0, Q("3.76859 mm")),
    Sketcher.Constraint("Distance", 5, Q("4.502352 mm")),
    Sketcher.Constraint("Distance", 9, Q("1.348522 mm")),
])
sketch11.setExpression("Constraints[20]", "Params.sketch11_diameter")
sketch11.setExpression("Constraints[21]", "Params.sketch11_radius")
sketch11.setExpression("Constraints[22]", "Params.sketch11_radius2")
pocket5 = body.newObject("PartDesign::Pocket", "Pocket004")
pocket5.Profile = sketch11
pocket5.setExpression("Length", "Params.pocket5_length")
doc.recompute()

fillet4 = body.newObject("PartDesign::Fillet", "Fillet003")
fillet4.Base = (pocket5, edges_at(pocket5, [(18.201, 7.8, 0.905), (9.853, 8.099, 0.905), (14.874, 10.77, 0.905)]))
fillet4.setExpression("Radius", "Params.fillet4_radius")

# Sketch on XY plane
sketch12 = body.newObject("Sketcher::SketchObject", "Sketch011")
sketch12.AttachmentSupport = (doc.getObject("XY_Plane"), [""])
sketch12.MapMode = "FlatFace"
sketch12.AttachmentOffset = App.Placement(App.Vector(0, 0, -0.905), App.Rotation())
sketch12.addGeometry([
    Part.LineSegment(App.Vector(18.61, 5.6, 0), App.Vector(16.95, 7.8, 0)),  # 0
    Part.ArcOfCircle(Part.Circle(App.Vector(14.45, 7.8, 0), App.Vector(0, 0, 1), 2.5), math.radians(180), math.radians(360)),  # 1
    Part.LineSegment(App.Vector(11.95, 7.8, 0), App.Vector(8.94, 5.54, 0)),  # 2
    Part.LineSegment(App.Vector(8.94, 5.54, 0), App.Vector(7.67, 6, 0)),  # 3
    Part.LineSegment(App.Vector(7.67, 6, 0), App.Vector(7.06, 6, 0)),  # 4
    Part.LineSegment(App.Vector(7.06, 6, 0), App.Vector(12.65, 10.2, 0)),  # 5
    Part.ArcOfCircle(Part.Circle(App.Vector(14.45, 7.8, 0), App.Vector(0, 0, 1), 3), math.radians(37), math.radians(127)),  # 6
    Part.LineSegment(App.Vector(16.85, 9.6, 0), App.Vector(19.55, 6, 0)),  # 7
    Part.LineSegment(App.Vector(19.55, 6, 0), App.Vector(19.23, 6, 0)),  # 8
    Part.LineSegment(App.Vector(19.23, 6, 0), App.Vector(18.61, 5.6, 0)),  # 9
    Part.Circle(App.Vector(14.45, 7.8, 0), App.Vector(0, 0, 1), 1.5),  # 10
], False)
sketch12.addConstraint([
    Sketcher.Constraint("Coincident", 0, 2, 1, 2),
    Sketcher.Constraint("Coincident", 1, 1, 2, 1),
    Sketcher.Constraint("Coincident", 2, 2, 3, 1),
    Sketcher.Constraint("Coincident", 3, 2, 4, 1),
    Sketcher.Constraint("Coincident", 4, 2, 5, 1),
    Sketcher.Constraint("Tangent", 5, 2, 6, 2),
    Sketcher.Constraint("Tangent", 6, 1, 7, 1),
    Sketcher.Constraint("Coincident", 7, 2, 8, 1),
    Sketcher.Constraint("Coincident", 8, 2, 9, 1),
    Sketcher.Constraint("Coincident", 9, 2, 0, 1),
    Sketcher.Constraint("Horizontal", 4),
    Sketcher.Constraint("Horizontal", 8),
    Sketcher.Constraint("Coincident", 6, 3, 1, 3),
    Sketcher.Constraint("Coincident", 10, 3, 1, 3),
    Sketcher.Constraint("Perpendicular", 0, 2),
    Sketcher.Constraint("Parallel", 2, 5),
    Sketcher.Constraint("Perpendicular", 5, 7),
    Sketcher.Constraint("Horizontal", 10, 3, 0, 2),
    Sketcher.Constraint("Horizontal", 0, 2, 1, 1),
    Sketcher.Constraint("Horizontal", 4, 2, 7, 2),
    Sketcher.Constraint("Diameter", 10, Q("3 mm")),
    Sketcher.Constraint("Radius", 6, Q("3 mm")),
    Sketcher.Constraint("Radius", 1, Q("2.5 mm")),
    Sketcher.Constraint("DistanceY", -1, 1, 3, 2, Q("6 mm")),
    Sketcher.Constraint("DistanceX", -1, 1, 3, 2, Q("7.67 mm")),
    Sketcher.Constraint("DistanceX", -1, 1, 8, 2, Q("19.23 mm")),
    Sketcher.Constraint("DistanceX", 8, 2, 8, 1, Q("0.32276 mm")),
    Sketcher.Constraint("DistanceY", 9, 2, 0, 2, Q("2.204401 mm")),
    Sketcher.Constraint("Distance", 2, Q("3.76859 mm")),
    Sketcher.Constraint("Distance", 3, Q("1.348522 mm")),
    Sketcher.Constraint("Distance", 7, Q("4.502352 mm")),
])
sketch12.setExpression("Constraints[20]", "Params.sketch12_diameter")
sketch12.setExpression("Constraints[21]", "Params.sketch12_radius")
sketch12.setExpression("Constraints[22]", "Params.sketch12_radius2")
pocket6 = body.newObject("PartDesign::Pocket", "Pocket005")
pocket6.Profile = sketch12
pocket6.setExpression("Length", "Params.pocket6_length")
doc.recompute()

fillet5 = body.newObject("PartDesign::Fillet", "Fillet004")
fillet5.Base = (pocket6, edges_at(pocket6, [(9.853, 8.099, -0.905), (18.201, 7.8, -0.905), (14.874, 10.77, -0.905)]))
fillet5.setExpression("Radius", "Params.fillet5_radius")

doc.recompute()
